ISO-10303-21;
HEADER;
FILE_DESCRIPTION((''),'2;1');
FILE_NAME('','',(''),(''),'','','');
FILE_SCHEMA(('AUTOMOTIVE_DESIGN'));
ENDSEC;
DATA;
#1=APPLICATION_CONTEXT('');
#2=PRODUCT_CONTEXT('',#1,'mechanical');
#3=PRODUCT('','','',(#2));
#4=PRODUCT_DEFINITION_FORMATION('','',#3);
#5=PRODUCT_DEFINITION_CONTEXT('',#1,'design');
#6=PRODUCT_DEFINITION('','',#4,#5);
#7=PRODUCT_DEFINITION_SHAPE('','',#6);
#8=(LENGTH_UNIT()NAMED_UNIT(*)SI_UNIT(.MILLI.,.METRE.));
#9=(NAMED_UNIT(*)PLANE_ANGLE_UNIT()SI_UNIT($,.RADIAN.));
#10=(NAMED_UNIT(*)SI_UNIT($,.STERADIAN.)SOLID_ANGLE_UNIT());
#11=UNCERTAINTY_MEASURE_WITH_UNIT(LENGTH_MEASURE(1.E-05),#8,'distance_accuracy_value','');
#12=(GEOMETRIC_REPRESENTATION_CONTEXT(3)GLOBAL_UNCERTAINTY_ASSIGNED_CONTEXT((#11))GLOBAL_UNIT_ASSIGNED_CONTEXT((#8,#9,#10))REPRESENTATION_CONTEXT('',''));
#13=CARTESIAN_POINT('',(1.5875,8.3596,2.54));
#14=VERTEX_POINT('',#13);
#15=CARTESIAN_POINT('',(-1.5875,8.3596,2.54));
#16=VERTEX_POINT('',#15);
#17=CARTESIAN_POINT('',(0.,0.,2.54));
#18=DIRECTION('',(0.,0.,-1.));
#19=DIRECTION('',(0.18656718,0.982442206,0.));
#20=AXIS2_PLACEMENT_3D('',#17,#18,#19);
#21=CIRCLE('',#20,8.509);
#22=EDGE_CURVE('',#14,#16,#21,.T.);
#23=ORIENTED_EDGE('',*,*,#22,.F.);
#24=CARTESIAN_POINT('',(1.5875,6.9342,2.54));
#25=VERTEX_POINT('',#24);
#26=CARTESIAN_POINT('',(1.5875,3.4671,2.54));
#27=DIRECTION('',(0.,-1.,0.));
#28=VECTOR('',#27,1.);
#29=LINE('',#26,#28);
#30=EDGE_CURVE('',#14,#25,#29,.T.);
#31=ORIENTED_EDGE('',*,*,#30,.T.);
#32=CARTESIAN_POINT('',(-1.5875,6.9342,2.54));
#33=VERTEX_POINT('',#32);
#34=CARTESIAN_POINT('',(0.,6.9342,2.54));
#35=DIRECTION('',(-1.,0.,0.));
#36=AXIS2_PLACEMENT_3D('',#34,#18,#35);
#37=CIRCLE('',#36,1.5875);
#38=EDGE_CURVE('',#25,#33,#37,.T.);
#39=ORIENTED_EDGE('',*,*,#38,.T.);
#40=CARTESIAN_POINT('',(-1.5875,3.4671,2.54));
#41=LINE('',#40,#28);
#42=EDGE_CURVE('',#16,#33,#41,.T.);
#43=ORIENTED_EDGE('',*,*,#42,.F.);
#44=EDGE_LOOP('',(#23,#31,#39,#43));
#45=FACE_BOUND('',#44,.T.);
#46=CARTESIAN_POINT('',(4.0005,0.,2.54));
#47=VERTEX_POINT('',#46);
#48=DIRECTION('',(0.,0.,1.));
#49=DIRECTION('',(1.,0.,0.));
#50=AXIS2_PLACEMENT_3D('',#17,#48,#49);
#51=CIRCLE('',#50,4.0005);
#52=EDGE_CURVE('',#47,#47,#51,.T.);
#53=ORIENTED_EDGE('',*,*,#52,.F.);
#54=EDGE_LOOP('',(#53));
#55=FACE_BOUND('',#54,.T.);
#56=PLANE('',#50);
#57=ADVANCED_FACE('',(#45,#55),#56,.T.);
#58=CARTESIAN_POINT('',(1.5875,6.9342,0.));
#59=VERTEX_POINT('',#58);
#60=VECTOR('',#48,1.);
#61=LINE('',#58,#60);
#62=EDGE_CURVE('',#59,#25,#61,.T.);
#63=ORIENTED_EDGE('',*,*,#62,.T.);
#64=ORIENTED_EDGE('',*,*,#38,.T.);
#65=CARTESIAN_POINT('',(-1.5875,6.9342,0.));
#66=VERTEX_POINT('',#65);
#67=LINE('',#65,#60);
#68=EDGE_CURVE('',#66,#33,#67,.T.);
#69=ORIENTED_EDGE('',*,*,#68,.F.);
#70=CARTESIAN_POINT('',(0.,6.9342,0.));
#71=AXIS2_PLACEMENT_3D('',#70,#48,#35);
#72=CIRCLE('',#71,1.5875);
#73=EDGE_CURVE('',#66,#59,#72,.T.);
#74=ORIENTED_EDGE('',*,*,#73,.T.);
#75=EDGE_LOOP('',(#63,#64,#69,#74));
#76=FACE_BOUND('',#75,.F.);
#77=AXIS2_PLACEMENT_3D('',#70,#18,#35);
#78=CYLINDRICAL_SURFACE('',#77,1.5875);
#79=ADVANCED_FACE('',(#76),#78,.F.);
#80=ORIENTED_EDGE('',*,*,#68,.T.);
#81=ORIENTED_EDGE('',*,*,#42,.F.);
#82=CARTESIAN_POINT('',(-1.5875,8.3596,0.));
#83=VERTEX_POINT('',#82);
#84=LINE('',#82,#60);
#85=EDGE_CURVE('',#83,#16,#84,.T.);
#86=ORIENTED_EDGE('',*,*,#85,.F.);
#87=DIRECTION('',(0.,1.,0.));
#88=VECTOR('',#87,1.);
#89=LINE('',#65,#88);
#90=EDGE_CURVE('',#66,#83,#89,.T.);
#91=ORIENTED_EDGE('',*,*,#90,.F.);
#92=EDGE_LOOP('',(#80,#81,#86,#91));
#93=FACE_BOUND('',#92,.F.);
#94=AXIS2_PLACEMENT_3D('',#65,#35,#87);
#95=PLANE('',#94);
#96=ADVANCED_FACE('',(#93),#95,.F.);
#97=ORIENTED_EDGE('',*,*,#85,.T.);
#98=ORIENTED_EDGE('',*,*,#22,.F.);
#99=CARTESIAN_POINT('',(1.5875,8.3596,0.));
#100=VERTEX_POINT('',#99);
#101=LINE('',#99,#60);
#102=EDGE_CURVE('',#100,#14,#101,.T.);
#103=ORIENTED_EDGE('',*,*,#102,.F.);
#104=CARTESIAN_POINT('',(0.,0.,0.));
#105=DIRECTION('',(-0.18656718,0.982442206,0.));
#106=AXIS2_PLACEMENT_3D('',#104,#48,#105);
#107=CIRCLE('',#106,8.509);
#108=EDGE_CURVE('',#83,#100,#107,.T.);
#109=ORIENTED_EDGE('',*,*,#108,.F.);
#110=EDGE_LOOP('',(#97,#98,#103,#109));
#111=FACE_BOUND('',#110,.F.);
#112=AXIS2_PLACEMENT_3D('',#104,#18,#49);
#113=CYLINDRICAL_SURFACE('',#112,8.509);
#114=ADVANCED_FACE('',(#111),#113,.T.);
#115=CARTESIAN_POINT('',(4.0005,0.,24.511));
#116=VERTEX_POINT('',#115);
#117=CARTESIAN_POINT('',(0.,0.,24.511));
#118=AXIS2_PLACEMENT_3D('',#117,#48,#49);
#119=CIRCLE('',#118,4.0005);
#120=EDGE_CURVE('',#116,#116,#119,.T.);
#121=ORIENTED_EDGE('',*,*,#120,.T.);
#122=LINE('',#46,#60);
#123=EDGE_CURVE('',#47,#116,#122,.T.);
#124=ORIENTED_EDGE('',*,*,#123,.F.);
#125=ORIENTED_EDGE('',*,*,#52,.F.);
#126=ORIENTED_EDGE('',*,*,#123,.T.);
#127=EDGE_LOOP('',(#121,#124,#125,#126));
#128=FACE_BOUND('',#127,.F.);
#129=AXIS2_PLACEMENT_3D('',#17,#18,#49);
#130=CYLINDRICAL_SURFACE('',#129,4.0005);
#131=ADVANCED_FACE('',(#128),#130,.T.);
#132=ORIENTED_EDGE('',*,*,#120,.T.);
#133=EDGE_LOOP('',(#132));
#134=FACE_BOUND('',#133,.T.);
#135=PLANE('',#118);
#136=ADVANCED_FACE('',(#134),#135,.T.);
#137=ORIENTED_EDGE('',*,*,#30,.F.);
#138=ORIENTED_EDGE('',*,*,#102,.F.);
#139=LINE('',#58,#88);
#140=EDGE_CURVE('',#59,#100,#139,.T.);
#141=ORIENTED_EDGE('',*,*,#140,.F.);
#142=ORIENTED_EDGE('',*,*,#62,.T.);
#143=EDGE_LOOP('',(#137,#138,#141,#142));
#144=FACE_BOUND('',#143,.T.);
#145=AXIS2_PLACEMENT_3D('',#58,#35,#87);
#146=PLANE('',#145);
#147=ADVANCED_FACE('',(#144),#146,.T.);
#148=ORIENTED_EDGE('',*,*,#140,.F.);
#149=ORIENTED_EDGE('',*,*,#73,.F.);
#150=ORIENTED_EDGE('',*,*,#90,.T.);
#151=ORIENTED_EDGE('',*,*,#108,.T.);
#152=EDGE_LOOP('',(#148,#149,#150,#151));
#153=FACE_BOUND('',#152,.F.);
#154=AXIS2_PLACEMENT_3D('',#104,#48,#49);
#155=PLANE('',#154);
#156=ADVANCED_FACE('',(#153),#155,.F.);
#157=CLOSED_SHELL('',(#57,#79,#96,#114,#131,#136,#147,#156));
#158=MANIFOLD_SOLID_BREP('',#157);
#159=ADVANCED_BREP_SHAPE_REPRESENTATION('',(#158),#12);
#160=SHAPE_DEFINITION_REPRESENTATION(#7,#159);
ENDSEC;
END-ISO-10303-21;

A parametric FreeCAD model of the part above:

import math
import FreeCAD as App
import Part
import Sketcher

V = App.Vector
Q = App.Units.Quantity

doc = App.newDocument("Part")
params = doc.addObject("Spreadsheet::Sheet", "Params")
for row, (alias, value) in enumerate([
    ("sketch1_diameter", "0.67 in"),
    ("pad1_length", "0.1 in"),
    ("sketch2_radius", "0.0625 in"),
    ("sketch2_radius2", "0.335 in"),
    ("sketch3_diameter", "0.315 in"),
    ("pad2_length", "0.865 in"),
], start=1):
    params.set(f"A{row}", alias)
    params.set(f"B{row}", "=" + value)
    params.setAlias(f"B{row}", alias)

body = doc.addObject("PartDesign::Body", "Body")

# Sketch on XY plane
sketch1 = body.newObject("Sketcher::SketchObject", "Sketch")
sketch1.AttachmentSupport = (doc.getObject("XY_Plane"), [""])
sketch1.MapMode = "FlatFace"
sketch1.addGeometry(Part.Circle(V(0, 0, 0), V(0, 0, 1), 9), False)
sketch1.addConstraint([
    Sketcher.Constraint("Coincident", 0, 3, -1, 1),
    Sketcher.Constraint("Diameter", 0, Q("0.67 in")),
])
sketch1.setExpression("Constraints[1]", "Params.sketch1_diameter")
pad1 = body.newObject("PartDesign::Pad", "Pad")
pad1.Profile = sketch1
pad1.setExpression("Length", "Params.pad1_length")

# Sketch on XY plane
sketch2 = body.newObject("Sketcher::SketchObject", "Sketch001")
sketch2.AttachmentSupport = (doc.getObject("XY_Plane"), [""])
sketch2.MapMode = "FlatFace"
sketch2.addGeometry([
    Part.LineSegment(V(-1.6, 6.9, 0), V(-1.6, 8.4, 0)),
    Part.ArcOfCircle(Part.Circle(V(0, 0, 0), V(0, 0, 1), 8.5), math.radians(79), math.radians(101)),
    Part.LineSegment(V(1.6, 8.4, 0), V(1.6, 6.9, 0)),
    Part.ArcOfCircle(Part.Circle(V(0, 6.9, 0), V(0, 0, 1), 1.6), math.radians(180), math.radians(360)),
], False)
sketch2.addConstraint([
    Sketcher.Constraint("Coincident", 0, 2, 1, 2),
    Sketcher.Constraint("Coincident", 1, 1, 2, 1),
    Sketcher.Constraint("Tangent", 2, 2, 3, 2),
    Sketcher.Constraint("Tangent", 3, 1, 0, 1),
    Sketcher.Constraint("Vertical", 0),
    Sketcher.Constraint("Vertical", 2),
    Sketcher.Constraint("Coincident", 1, 3, -1, 1),
    Sketcher.Constraint("PointOnObject", 3, 3, -2),
    Sketcher.Constraint("Radius", 3, Q("0.0625 in")),
    Sketcher.Constraint("DistanceY", -1, 1, 3, 3, Q("0.273 in")),
    Sketcher.Constraint("Radius", 1, Q("0.335 in")),
])
sketch2.setExpression("Constraints[8]", "Params.sketch2_radius")
sketch2.setExpression("Constraints[10]", "Params.sketch2_radius2")
pocket1 = body.newObject("PartDesign::Pocket", "Pocket")
pocket1.Profile = sketch2
pocket1.Type = "ThroughAll"
pocket1.Reversed = True

# Sketch on XY plane
sketch3 = body.newObject("Sketcher::SketchObject", "Sketch002")
sketch3.AttachmentSupport = (doc.getObject("XY_Plane"), [""])
sketch3.MapMode = "FlatFace"
sketch3.AttachmentOffset = App.Placement(V(0, 0, 0.1 * 25.4), App.Rotation())
sketch3.addGeometry(Part.Circle(V(0, 0, 0), V(0, 0, 1), 4), False)
sketch3.addConstraint([
    Sketcher.Constraint("Coincident", 0, 3, -1, 1),
    Sketcher.Constraint("Diameter", 0, Q("0.315 in")),
])
sketch3.setExpression("Constraints[1]", "Params.sketch3_diameter")
pad2 = body.newObject("PartDesign::Pad", "Pad001")
pad2.Profile = sketch3
pad2.setExpression("Length", "Params.pad2_length")

doc.recompute()
